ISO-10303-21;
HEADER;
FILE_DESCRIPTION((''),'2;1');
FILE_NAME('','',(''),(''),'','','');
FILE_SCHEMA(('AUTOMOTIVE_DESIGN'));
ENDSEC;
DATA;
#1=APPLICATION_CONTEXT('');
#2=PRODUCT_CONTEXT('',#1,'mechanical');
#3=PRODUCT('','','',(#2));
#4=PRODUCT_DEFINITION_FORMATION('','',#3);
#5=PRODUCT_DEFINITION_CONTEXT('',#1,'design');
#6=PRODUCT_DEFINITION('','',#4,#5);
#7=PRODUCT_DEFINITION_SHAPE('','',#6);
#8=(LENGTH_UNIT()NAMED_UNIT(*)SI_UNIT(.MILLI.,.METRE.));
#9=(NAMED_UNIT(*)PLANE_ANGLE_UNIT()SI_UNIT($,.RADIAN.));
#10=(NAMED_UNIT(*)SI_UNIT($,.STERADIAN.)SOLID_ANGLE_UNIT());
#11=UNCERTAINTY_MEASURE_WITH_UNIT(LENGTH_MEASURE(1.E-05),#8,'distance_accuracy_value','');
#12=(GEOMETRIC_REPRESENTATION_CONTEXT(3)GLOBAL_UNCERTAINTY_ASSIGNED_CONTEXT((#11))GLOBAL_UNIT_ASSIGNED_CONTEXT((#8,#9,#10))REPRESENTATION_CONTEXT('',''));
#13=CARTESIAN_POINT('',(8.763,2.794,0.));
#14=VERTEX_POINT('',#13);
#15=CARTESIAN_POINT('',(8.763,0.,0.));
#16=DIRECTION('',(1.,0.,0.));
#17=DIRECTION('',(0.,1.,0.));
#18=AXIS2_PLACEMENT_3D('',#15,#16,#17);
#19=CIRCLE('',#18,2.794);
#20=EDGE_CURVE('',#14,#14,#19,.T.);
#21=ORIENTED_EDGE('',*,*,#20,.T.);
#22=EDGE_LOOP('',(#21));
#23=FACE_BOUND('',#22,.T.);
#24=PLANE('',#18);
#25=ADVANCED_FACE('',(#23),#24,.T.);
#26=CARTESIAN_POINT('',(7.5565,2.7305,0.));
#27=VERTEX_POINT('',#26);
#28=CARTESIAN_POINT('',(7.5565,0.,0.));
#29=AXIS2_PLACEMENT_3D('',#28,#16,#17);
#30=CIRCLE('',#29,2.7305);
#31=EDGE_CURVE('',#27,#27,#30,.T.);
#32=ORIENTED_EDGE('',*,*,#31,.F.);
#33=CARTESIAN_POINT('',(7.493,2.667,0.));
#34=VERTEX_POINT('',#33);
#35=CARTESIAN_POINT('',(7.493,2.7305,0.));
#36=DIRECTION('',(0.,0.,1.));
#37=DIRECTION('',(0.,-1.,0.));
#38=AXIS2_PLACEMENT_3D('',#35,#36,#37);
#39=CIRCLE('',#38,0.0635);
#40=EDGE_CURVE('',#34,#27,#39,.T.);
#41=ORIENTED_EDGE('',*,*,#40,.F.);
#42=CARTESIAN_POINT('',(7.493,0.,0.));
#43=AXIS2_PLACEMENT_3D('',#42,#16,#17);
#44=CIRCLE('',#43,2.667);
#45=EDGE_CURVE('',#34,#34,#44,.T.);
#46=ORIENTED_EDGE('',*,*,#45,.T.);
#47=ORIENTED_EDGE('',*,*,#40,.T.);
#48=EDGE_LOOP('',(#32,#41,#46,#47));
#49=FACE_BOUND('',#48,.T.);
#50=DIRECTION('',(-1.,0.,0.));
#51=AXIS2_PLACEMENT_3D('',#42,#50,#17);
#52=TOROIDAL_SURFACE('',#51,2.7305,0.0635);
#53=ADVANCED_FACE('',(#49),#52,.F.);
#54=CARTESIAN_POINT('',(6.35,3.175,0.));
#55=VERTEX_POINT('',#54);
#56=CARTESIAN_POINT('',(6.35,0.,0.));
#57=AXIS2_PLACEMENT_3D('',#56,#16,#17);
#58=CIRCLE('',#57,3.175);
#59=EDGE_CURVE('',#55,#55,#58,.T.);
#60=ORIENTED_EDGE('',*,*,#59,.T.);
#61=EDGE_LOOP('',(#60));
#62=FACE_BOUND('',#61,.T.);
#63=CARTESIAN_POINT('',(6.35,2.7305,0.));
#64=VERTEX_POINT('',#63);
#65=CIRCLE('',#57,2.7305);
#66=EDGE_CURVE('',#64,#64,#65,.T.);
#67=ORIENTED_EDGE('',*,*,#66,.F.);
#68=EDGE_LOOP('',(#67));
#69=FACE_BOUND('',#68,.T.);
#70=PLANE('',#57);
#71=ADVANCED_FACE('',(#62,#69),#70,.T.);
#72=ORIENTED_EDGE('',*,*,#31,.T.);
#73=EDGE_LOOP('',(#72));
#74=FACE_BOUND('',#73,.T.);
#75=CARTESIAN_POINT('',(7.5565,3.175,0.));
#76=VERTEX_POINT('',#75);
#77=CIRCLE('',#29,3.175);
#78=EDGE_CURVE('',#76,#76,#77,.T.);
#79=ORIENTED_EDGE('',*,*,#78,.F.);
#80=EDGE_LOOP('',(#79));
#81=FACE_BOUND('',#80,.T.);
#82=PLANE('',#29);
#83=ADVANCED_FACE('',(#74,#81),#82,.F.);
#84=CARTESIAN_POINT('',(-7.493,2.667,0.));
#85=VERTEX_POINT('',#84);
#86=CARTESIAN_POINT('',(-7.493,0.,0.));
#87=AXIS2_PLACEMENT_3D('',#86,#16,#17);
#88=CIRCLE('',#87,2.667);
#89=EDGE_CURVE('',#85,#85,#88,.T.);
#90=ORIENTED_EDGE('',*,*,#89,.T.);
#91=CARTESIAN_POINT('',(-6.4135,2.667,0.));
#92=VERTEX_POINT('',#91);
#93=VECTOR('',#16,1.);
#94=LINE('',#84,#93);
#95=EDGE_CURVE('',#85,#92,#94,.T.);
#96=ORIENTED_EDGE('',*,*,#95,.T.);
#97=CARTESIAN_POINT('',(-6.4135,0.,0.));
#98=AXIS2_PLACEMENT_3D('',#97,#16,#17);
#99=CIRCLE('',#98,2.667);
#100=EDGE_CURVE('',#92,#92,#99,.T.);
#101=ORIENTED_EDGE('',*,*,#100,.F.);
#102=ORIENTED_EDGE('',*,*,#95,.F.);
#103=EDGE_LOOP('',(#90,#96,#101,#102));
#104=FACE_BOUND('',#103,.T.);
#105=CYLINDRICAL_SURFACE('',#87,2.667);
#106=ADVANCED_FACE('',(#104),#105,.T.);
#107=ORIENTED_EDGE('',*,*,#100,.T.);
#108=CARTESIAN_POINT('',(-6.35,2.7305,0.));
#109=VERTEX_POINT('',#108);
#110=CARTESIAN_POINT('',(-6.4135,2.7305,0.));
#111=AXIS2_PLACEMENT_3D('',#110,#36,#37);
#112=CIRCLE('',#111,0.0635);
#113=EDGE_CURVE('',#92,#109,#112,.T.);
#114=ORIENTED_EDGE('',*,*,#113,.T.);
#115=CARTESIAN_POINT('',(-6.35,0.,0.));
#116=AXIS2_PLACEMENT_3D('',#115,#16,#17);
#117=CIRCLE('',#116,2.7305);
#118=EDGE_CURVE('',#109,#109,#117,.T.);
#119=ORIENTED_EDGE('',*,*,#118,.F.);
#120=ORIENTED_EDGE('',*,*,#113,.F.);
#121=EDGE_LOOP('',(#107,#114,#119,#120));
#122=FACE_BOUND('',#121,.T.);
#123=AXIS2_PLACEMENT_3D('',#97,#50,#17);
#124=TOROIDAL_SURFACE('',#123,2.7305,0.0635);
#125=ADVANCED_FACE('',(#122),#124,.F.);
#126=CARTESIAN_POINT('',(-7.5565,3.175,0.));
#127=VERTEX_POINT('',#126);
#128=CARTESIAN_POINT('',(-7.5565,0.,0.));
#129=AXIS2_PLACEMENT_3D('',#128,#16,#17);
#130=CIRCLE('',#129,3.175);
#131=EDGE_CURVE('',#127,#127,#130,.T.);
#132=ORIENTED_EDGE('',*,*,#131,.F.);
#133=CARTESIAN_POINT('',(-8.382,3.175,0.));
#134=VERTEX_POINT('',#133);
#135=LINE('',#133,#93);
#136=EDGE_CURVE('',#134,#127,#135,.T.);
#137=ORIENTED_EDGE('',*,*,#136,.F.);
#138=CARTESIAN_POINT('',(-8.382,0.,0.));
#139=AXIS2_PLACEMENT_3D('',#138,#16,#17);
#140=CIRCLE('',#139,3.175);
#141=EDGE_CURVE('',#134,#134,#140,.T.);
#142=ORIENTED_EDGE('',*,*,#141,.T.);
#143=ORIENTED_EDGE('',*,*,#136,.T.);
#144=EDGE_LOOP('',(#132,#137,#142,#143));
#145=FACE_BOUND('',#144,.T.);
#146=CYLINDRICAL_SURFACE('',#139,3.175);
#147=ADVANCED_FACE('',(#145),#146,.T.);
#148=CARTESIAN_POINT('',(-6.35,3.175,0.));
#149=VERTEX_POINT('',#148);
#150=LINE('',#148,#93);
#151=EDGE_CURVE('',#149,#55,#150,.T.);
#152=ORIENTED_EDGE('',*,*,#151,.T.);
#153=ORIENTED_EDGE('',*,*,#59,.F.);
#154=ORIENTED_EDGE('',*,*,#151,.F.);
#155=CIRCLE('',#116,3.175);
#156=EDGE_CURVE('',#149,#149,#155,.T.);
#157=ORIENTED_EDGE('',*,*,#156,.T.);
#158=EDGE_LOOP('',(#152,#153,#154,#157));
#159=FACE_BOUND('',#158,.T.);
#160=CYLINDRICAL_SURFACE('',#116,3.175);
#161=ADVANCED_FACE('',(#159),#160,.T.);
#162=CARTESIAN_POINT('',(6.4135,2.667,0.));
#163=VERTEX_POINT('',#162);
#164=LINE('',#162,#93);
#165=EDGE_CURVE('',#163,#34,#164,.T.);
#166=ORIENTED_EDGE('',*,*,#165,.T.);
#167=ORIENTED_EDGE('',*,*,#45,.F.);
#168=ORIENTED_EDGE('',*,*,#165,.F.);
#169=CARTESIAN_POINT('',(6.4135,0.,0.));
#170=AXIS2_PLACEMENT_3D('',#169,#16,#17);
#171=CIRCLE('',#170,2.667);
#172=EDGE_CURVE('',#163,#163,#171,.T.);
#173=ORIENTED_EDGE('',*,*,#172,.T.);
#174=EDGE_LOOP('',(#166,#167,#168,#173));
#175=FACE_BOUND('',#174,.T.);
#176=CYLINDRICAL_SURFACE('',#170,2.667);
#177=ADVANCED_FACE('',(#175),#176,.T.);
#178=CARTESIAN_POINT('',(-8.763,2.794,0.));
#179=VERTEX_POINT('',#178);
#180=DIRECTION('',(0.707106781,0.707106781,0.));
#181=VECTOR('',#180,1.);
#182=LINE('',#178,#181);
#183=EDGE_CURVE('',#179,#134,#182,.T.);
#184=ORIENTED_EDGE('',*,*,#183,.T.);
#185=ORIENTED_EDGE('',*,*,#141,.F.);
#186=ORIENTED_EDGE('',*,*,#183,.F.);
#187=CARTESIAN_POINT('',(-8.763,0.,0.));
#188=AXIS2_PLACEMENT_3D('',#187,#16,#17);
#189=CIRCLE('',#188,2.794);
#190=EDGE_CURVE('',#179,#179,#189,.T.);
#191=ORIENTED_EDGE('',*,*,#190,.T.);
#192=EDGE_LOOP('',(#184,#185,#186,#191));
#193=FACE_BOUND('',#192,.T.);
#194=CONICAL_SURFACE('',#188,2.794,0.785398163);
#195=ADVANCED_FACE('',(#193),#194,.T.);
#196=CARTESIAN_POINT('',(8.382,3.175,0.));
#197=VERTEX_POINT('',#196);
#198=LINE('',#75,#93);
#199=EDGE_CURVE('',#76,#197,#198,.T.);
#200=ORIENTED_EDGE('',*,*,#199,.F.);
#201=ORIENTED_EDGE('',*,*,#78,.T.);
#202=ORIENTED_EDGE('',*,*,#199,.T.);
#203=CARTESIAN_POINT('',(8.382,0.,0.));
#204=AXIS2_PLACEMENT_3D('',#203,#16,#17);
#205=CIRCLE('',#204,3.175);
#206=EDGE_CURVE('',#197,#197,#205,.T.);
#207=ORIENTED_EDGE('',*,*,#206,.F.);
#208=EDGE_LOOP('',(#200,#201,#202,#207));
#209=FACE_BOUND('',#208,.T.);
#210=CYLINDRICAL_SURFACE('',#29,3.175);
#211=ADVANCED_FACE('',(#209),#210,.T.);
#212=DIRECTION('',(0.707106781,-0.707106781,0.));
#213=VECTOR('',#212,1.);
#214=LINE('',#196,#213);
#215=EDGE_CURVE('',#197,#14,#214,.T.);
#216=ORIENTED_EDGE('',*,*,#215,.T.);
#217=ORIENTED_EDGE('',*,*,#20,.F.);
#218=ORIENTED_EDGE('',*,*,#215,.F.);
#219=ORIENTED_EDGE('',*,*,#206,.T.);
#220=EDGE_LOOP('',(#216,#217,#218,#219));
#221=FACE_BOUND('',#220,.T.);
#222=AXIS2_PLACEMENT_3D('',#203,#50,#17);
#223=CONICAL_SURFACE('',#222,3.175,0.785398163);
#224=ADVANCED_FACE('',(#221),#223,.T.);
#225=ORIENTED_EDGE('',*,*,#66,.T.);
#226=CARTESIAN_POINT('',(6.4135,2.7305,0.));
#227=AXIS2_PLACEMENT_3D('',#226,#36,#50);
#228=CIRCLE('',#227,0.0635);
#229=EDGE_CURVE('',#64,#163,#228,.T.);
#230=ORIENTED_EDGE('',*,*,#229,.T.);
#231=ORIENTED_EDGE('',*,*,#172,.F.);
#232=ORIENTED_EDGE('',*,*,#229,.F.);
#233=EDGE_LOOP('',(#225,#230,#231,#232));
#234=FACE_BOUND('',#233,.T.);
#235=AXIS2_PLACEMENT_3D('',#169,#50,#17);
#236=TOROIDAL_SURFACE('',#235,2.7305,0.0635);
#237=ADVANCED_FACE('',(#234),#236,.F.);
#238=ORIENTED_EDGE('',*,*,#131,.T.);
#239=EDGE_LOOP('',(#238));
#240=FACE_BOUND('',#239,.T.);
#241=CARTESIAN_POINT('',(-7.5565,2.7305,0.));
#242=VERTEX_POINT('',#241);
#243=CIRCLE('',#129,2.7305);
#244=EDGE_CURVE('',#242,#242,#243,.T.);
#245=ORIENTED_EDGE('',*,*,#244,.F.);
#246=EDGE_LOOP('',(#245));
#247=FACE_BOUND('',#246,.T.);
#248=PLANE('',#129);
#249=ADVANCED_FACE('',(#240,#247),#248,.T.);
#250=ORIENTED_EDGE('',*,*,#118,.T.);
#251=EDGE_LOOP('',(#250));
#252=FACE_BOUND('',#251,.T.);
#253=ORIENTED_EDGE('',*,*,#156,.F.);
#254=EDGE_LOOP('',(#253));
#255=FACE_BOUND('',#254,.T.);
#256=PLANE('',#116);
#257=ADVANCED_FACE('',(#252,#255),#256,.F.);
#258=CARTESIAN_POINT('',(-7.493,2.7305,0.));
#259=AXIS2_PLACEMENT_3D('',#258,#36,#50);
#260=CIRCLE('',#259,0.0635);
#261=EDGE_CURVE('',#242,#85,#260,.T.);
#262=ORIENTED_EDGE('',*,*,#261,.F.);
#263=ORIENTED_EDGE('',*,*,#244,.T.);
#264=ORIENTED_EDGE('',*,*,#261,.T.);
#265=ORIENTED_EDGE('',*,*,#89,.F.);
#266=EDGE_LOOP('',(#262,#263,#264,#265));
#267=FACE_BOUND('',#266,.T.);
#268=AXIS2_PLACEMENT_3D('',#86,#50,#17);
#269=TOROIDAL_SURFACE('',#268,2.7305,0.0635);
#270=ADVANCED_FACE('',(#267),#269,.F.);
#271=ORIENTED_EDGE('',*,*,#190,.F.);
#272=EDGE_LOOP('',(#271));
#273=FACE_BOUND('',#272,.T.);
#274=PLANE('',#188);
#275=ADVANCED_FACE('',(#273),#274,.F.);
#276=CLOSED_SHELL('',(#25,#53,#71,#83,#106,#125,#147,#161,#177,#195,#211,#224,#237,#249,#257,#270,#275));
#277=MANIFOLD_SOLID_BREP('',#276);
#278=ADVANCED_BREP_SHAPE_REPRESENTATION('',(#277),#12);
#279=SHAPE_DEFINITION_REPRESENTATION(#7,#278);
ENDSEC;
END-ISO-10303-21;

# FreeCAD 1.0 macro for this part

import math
import FreeCAD as App
import Part
import Sketcher

V = App.Vector
Q = App.Units.Quantity

doc = App.newDocument("Part")
body = doc.addObject("PartDesign::Body", "Body")

# Sketch on XY plane
sketch1 = body.newObject("Sketcher::SketchObject", "Sketch")
sketch1.AttachmentSupport = (doc.getObject("XY_Plane"), [""])
sketch1.MapMode = "FlatFace"
sketch1.addGeometry([
    Part.LineSegment(V(-8.763, 0, 0), V(8.763, 0, 0)),  # 0
    Part.LineSegment(V(8.763, 0, 0), V(8.763, 2.794, 0)),  # 1
    Part.LineSegment(V(8.763, 2.794, 0), V(8.382, 3.175, 0)),  # 2
    Part.LineSegment(V(8.382, 3.175, 0), V(7.5565, 3.175, 0)),  # 3
    Part.LineSegment(V(7.5565, 3.175, 0), V(7.5565, 2.7305, 0)),  # 4
    Part.ArcOfCircle(Part.Circle(V(7.493, 2.7305, 0), V(0, 0, 1), 0.0635), math.radians(-90), math.radians(0)),  # 5
    Part.LineSegment(V(7.493, 2.667, 0), V(6.4135, 2.667, 0)),  # 6
    Part.ArcOfCircle(Part.Circle(V(6.4135, 2.7305, 0), V(0, 0, 1), 0.0635), math.radians(180), math.radians(270)),  # 7
    Part.LineSegment(V(6.35, 2.7305, 0), V(6.35, 3.175, 0)),  # 8
    Part.LineSegment(V(6.35, 3.175, 0), V(-6.35, 3.175, 0)),  # 9
    Part.LineSegment(V(-6.35, 3.175, 0), V(-6.35, 2.7305, 0)),  # 10
    Part.ArcOfCircle(Part.Circle(V(-6.4135, 2.7305, 0), V(0, 0, 1), 0.0635), math.radians(-90), math.radians(0)),  # 11
    Part.LineSegment(V(-6.4135, 2.667, 0), V(-7.493, 2.667, 0)),  # 12
    Part.ArcOfCircle(Part.Circle(V(-7.493, 2.7305, 0), V(0, 0, 1), 0.0635), math.radians(180), math.radians(270)),  # 13
    Part.LineSegment(V(-7.5565, 2.7305, 0), V(-7.5565, 3.175, 0)),  # 14
    Part.LineSegment(V(-7.5565, 3.175, 0), V(-8.382, 3.175, 0)),  # 15
    Part.LineSegment(V(-8.382, 3.175, 0), V(-8.763, 2.794, 0)),  # 16
    Part.LineSegment(V(-8.763, 2.794, 0), V(-8.763, 0, 0)),  # 17
], False)
sketch1.addConstraint([
    Sketcher.Constraint("Coincident", 0, 2, 1, 1),
    Sketcher.Constraint("Coincident", 1, 2, 2, 1),
    Sketcher.Constraint("Coincident", 2, 2, 3, 1),
    Sketcher.Constraint("Coincident", 3, 2, 4, 1),
    Sketcher.Constraint("Tangent", 4, 2, 5, 2),
    Sketcher.Constraint("Tangent", 5, 1, 6, 1),
    Sketcher.Constraint("Tangent", 6, 2, 7, 2),
    Sketcher.Constraint("Tangent", 7, 1, 8, 1),
    Sketcher.Constraint("Coincident", 8, 2, 9, 1),
    Sketcher.Constraint("Coincident", 9, 2, 10, 1),
    Sketcher.Constraint("Tangent", 10, 2, 11, 2),
    Sketcher.Constraint("Tangent", 11, 1, 12, 1),
    Sketcher.Constraint("Tangent", 12, 2, 13, 2),
    Sketcher.Constraint("Tangent", 13, 1, 14, 1),
    Sketcher.Constraint("Coincident", 14, 2, 15, 1),
    Sketcher.Constraint("Coincident", 15, 2, 16, 1),
    Sketcher.Constraint("Coincident", 16, 2, 17, 1),
    Sketcher.Constraint("Coincident", 17, 2, 0, 1),
    Sketcher.Constraint("Horizontal", 0),
    Sketcher.Constraint("Vertical", 1),
    Sketcher.Constraint("Horizontal", 3),
    Sketcher.Constraint("Vertical", 4),
    Sketcher.Constraint("Horizontal", 6),
    Sketcher.Constraint("Vertical", 8),
    Sketcher.Constraint("Horizontal", 9),
    Sketcher.Constraint("Vertical", 10),
    Sketcher.Constraint("Horizontal", 12),
    Sketcher.Constraint("Vertical", 14),
    Sketcher.Constraint("Horizontal", 15),
    Sketcher.Constraint("Vertical", 17),
    Sketcher.Constraint("Equal", 5, 7),
    Sketcher.Constraint("Equal", 7, 11),
    Sketcher.Constraint("Equal", 11, 13),
    Sketcher.Constraint("Symmetric", 0, 2, 17, 2, -1, 1),
    Sketcher.Constraint("Symmetric", 7, 3, 11, 3, -2),
    Sketcher.Constraint("Symmetric", 3, 2, 14, 2, -2),
    Sketcher.Constraint("Perpendicular", 2, 16),
    Sketcher.Constraint("Horizontal", 3, 2, 8, 2),
    Sketcher.Constraint("Horizontal", 1, 2, 16, 2),
    Sketcher.Constraint("Equal", 3, 15),
    Sketcher.Constraint("DistanceX", 9, 2, 9, 1, Q("0.5 in")),
    Sketcher.Constraint("DistanceX", 0, 1, 0, 2, Q("0.69 in")),
    Sketcher.Constraint("DistanceY", 1, 1, 1, 2, Q("0.11 in")),
    Sketcher.Constraint("Radius", 5, Q("0.0025 in")),
    Sketcher.Constraint("DistanceX", -1, 1, 2, 2, Q("0.33 in")),
    Sketcher.Constraint("DistanceX", 13, 3, 5, 3, Q("0.59 in")),
    Sketcher.Constraint("DistanceY", 5, 1, 3, 2, Q("0.02 in")),
])
revolution = body.newObject("PartDesign::Revolution", "Revolution")
revolution.Profile = sketch1
revolution.ReferenceAxis = (sketch1, ["H_Axis"])
revolution.Angle = 360

doc.recompute()
